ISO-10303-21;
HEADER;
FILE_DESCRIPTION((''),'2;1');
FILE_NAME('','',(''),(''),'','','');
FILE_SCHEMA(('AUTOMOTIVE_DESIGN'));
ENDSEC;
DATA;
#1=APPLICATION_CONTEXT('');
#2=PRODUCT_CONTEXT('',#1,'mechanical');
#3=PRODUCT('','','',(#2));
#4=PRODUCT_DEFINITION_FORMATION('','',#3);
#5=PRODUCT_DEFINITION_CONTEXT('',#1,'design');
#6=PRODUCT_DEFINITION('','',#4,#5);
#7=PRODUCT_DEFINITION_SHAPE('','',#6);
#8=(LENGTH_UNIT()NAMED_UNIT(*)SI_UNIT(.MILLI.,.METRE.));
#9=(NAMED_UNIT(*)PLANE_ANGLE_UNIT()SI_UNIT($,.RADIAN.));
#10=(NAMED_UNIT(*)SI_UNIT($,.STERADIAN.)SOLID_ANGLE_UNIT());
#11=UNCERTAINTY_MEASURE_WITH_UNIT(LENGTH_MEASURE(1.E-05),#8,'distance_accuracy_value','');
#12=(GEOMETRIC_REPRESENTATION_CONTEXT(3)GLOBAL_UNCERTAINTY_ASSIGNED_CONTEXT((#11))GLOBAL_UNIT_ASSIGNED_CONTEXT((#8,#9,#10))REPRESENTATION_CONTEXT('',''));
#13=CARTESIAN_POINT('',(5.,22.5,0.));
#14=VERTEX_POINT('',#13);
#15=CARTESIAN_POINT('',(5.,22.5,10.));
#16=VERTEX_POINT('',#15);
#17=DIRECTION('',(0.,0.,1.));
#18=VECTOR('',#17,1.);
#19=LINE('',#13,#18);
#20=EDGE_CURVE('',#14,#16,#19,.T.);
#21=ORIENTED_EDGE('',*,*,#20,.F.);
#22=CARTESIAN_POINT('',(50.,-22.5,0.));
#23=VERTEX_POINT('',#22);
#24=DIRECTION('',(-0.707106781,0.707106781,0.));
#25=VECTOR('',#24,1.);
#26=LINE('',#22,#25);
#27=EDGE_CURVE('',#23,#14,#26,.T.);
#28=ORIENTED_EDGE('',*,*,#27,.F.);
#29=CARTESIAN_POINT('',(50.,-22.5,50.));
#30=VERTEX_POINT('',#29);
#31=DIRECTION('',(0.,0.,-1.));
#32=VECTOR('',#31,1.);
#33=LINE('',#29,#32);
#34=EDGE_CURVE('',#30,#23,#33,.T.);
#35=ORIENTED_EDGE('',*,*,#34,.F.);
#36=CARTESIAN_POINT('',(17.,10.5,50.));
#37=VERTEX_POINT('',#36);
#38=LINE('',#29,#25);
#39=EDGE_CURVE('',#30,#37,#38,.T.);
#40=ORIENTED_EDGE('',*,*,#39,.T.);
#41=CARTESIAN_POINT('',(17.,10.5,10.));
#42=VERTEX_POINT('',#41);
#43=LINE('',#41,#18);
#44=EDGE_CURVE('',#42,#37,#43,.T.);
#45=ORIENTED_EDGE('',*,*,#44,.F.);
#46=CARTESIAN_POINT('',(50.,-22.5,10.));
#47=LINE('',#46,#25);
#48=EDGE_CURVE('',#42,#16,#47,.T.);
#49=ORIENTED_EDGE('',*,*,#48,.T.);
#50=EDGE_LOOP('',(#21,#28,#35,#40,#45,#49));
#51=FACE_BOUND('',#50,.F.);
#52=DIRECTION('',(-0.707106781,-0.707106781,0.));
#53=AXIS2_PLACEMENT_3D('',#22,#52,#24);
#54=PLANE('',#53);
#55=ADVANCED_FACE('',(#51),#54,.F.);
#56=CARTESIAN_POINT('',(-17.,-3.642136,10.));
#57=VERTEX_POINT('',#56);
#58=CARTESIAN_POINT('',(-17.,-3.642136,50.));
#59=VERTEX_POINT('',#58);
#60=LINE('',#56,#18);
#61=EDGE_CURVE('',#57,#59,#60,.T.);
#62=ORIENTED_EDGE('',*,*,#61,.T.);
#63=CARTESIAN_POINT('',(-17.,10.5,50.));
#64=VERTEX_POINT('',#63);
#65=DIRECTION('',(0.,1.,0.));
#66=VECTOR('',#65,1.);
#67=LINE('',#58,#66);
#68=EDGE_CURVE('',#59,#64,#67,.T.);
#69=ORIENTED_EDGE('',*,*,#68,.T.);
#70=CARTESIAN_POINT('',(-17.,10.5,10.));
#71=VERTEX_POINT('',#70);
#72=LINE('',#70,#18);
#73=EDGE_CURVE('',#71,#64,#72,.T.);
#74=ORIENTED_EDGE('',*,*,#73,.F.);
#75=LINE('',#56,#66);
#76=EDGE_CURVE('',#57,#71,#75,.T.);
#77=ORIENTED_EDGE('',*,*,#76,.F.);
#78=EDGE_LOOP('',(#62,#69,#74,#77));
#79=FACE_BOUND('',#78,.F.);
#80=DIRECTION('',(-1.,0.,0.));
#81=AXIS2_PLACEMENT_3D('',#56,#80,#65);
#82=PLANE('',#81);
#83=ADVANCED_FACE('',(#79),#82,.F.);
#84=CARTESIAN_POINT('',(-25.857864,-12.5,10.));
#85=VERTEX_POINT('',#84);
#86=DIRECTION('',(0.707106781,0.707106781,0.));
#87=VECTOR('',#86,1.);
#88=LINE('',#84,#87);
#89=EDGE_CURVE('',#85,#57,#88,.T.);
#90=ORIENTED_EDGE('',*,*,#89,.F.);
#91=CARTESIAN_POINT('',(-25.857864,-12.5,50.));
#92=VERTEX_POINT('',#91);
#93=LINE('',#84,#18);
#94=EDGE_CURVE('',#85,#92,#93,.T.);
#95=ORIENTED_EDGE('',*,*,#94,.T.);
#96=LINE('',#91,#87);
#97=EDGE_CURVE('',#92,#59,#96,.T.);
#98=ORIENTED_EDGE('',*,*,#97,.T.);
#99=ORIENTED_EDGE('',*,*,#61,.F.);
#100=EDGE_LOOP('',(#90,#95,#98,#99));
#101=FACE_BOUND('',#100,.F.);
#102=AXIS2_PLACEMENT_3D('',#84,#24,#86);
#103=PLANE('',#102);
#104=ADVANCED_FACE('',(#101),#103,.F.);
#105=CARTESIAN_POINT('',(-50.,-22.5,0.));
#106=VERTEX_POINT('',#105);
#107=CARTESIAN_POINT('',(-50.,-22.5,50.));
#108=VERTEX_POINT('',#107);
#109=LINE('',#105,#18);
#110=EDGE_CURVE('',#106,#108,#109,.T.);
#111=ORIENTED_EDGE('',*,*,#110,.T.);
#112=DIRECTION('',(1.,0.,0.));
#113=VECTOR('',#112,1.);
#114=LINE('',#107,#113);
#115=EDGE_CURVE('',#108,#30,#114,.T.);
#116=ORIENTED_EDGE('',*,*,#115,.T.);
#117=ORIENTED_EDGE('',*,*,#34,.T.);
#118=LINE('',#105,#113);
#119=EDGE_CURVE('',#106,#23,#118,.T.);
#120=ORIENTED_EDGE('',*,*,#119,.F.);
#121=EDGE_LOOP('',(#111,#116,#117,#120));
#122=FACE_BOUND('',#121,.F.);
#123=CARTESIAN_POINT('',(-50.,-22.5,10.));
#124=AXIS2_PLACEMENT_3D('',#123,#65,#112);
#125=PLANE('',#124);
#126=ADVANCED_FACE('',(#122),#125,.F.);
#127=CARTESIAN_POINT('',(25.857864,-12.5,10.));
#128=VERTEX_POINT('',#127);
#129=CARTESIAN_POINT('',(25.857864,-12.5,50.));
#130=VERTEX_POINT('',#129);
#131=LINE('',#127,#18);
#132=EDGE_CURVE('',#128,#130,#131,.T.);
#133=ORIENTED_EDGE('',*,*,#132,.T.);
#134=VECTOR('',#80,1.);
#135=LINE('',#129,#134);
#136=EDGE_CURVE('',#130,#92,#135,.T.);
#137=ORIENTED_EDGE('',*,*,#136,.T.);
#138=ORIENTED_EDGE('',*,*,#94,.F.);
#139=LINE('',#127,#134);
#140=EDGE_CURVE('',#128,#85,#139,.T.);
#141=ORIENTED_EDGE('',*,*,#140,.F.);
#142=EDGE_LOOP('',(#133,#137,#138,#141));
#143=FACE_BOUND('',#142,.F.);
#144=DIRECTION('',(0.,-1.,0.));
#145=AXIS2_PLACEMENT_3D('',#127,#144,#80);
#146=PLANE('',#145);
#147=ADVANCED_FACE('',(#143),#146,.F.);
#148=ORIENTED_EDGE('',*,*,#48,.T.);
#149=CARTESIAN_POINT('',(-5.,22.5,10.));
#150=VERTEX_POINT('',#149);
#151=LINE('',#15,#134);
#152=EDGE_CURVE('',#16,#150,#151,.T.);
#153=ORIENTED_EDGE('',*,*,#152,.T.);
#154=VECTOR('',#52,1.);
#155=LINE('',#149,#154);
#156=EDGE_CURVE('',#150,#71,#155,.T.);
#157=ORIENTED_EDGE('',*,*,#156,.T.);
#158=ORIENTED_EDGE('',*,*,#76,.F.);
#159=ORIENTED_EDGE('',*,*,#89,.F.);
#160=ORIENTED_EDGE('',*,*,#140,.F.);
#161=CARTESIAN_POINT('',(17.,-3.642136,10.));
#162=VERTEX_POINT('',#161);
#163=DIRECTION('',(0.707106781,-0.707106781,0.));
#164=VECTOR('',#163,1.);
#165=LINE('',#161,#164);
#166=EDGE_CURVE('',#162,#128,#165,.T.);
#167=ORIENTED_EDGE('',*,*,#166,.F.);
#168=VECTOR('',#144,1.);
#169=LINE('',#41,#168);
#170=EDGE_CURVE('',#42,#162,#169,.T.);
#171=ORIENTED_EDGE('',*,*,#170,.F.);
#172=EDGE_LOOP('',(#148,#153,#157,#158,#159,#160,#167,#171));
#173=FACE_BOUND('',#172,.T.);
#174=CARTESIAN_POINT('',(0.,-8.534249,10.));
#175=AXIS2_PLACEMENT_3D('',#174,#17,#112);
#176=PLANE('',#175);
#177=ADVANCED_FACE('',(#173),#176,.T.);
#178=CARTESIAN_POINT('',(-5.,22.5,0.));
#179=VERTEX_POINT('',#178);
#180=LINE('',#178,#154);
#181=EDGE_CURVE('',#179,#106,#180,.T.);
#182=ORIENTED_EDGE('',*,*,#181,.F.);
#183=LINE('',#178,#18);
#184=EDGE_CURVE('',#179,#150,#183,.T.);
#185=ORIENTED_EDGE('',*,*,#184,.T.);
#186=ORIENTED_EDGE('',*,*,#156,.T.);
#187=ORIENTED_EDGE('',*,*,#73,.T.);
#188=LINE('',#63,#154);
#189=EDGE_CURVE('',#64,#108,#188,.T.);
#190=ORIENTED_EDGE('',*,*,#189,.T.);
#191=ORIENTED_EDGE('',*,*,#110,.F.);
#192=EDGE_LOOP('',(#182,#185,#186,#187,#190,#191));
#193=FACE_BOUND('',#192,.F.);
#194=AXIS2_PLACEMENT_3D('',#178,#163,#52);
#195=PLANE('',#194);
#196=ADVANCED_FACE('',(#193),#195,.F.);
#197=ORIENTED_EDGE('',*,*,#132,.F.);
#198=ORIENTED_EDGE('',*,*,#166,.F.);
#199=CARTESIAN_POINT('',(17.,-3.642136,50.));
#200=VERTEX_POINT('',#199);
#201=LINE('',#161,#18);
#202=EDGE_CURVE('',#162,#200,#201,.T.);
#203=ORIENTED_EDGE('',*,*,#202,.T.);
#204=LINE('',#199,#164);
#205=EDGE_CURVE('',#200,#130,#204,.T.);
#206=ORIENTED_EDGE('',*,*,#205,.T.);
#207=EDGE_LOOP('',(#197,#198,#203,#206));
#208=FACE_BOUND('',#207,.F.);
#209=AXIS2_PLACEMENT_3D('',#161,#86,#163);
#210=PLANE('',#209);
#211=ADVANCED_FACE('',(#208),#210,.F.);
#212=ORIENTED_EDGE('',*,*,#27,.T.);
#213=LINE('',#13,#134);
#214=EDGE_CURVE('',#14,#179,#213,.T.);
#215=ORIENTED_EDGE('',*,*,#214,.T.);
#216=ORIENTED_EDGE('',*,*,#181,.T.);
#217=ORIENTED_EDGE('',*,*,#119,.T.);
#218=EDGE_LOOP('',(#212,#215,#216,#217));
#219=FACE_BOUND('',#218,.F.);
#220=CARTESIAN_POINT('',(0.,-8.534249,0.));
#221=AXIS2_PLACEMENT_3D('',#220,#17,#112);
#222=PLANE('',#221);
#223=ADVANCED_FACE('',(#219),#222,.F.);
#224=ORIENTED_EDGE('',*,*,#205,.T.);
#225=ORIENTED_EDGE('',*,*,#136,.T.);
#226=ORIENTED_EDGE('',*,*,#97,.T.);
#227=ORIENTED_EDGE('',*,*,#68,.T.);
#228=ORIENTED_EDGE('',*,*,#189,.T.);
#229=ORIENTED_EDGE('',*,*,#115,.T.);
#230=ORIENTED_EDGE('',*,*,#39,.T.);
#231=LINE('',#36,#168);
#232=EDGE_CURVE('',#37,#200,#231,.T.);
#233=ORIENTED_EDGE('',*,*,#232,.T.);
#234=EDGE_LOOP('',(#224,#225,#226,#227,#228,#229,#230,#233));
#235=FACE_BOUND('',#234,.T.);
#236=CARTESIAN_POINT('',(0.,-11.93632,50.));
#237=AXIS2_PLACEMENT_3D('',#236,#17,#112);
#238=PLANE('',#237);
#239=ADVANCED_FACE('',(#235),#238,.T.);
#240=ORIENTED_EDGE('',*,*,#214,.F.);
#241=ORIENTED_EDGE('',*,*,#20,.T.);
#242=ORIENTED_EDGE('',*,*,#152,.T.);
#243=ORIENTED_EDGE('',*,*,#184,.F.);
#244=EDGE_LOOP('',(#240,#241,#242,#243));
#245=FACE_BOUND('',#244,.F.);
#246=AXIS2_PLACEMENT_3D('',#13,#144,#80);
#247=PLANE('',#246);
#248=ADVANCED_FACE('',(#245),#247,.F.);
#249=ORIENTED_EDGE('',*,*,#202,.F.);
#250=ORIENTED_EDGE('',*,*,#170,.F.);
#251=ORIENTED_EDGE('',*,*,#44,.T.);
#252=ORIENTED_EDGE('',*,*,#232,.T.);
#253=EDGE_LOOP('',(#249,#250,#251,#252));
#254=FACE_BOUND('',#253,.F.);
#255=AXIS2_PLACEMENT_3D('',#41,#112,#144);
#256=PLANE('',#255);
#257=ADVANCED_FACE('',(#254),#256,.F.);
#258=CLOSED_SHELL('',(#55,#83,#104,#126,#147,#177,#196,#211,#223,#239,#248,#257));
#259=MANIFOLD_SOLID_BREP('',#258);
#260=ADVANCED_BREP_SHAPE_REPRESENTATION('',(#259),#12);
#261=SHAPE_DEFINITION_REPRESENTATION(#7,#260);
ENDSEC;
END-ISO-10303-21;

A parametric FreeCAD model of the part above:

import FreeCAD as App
import Part
import Sketcher

V = App.Vector
Q = App.Units.Quantity


def add_polygon(sketch, points):
    """Adds a closed chain of lines whose ends are joined by coincident constraints."""
    first, n = sketch.GeometryCount, len(points)
    for a, b in zip(points, points[1:] + points[:1]):
        sketch.addGeometry(Part.LineSegment(App.Vector(*a, 0), App.Vector(*b, 0)), False)
    for i in range(n):
        sketch.addConstraint(Sketcher.Constraint("Coincident", first + i, 2, first + (i + 1) % n, 1))

doc = App.newDocument("Part")
body = doc.addObject("PartDesign::Body", "Body")

sketch1 = body.newObject("Sketcher::SketchObject", "Sketch")
sketch1.AttachmentSupport = (doc.getObject("XY_Plane"), [""])
sketch1.MapMode = "FlatFace"
add_polygon(sketch1, [(-5, 22.5), (-50, -22.5), (50, -22.5), (5, 22.5)])
sketch1.addConstraint(Sketcher.Constraint("Horizontal", 1))
sketch1.addConstraint(Sketcher.Constraint("Horizontal", 3))
sketch1.addConstraint(Sketcher.Constraint("Perpendicular", 0, 2))
sketch1.addConstraint(Sketcher.Constraint("Equal", 0, 2))
sketch1.addConstraint(Sketcher.Constraint("DistanceX", 1, 1, 1, 2, Q("100 mm")))
sketch1.addConstraint(Sketcher.Constraint("DistanceX", 3, 2, 3, 1, Q("10 mm")))
sketch1.addConstraint(Sketcher.Constraint("DistanceX", 0, 2, -1, 1, Q("50 mm")))
sketch1.addConstraint(Sketcher.Constraint("DistanceY", 0, 2, -1, 1, Q("22.5 mm")))
pad1 = body.newObject("PartDesign::Pad", "Pad")
pad1.Profile = sketch1
pad1.Length = 10

sketch2 = body.newObject("Sketcher::SketchObject", "Sketch001")
sketch2.AttachmentSupport = (doc.getObject("XY_Plane"), [""])
sketch2.MapMode = "FlatFace"
sketch2.AttachmentOffset = App.Placement(V(0, 0, 10), App.Rotation())
add_polygon(sketch2, [(25.857864, -12.5), (-25.857864, -12.5), (-17, -3.642136), (-17, 10.5), (-50, -22.5), (50, -22.5), (17, 10.5), (17, -3.642136)])
sketch2.addConstraint(Sketcher.Constraint("Horizontal", 0))
sketch2.addConstraint(Sketcher.Constraint("Vertical", 2))
sketch2.addConstraint(Sketcher.Constraint("Horizontal", 4))
sketch2.addConstraint(Sketcher.Constraint("Vertical", 6))
sketch2.addConstraint(Sketcher.Constraint("Symmetric", 2, 2, 5, 2, -2))
sketch2.addConstraint(Sketcher.Constraint("Parallel", 1, 3))
sketch2.addConstraint(Sketcher.Constraint("Perpendicular", 3, 5))
sketch2.addConstraint(Sketcher.Constraint("Parallel", 5, 7))
sketch2.addConstraint(Sketcher.Constraint("Horizontal", 1, 2, 6, 2))
sketch2.addConstraint(Sketcher.Constraint("Equal", 3, 5))
sketch2.addConstraint(Sketcher.Constraint("DistanceX", 4, 1, 4, 2, Q("100 mm")))
sketch2.addConstraint(Sketcher.Constraint("DistanceX", 1, 2, -1, 1, Q("17 mm")))
sketch2.addConstraint(Sketcher.Constraint("DistanceY", 0, 2, 2, 2, Q("23 mm")))
sketch2.addConstraint(Sketcher.Constraint("DistanceY", 0, 2, -1, 1, Q("12.5 mm")))
sketch2.addConstraint(Sketcher.Constraint("Distance", 1, Q("12.526911 mm")))
pad2 = body.newObject("PartDesign::Pad", "Pad001")
pad2.Profile = sketch2
pad2.Length = 40

doc.recompute()
